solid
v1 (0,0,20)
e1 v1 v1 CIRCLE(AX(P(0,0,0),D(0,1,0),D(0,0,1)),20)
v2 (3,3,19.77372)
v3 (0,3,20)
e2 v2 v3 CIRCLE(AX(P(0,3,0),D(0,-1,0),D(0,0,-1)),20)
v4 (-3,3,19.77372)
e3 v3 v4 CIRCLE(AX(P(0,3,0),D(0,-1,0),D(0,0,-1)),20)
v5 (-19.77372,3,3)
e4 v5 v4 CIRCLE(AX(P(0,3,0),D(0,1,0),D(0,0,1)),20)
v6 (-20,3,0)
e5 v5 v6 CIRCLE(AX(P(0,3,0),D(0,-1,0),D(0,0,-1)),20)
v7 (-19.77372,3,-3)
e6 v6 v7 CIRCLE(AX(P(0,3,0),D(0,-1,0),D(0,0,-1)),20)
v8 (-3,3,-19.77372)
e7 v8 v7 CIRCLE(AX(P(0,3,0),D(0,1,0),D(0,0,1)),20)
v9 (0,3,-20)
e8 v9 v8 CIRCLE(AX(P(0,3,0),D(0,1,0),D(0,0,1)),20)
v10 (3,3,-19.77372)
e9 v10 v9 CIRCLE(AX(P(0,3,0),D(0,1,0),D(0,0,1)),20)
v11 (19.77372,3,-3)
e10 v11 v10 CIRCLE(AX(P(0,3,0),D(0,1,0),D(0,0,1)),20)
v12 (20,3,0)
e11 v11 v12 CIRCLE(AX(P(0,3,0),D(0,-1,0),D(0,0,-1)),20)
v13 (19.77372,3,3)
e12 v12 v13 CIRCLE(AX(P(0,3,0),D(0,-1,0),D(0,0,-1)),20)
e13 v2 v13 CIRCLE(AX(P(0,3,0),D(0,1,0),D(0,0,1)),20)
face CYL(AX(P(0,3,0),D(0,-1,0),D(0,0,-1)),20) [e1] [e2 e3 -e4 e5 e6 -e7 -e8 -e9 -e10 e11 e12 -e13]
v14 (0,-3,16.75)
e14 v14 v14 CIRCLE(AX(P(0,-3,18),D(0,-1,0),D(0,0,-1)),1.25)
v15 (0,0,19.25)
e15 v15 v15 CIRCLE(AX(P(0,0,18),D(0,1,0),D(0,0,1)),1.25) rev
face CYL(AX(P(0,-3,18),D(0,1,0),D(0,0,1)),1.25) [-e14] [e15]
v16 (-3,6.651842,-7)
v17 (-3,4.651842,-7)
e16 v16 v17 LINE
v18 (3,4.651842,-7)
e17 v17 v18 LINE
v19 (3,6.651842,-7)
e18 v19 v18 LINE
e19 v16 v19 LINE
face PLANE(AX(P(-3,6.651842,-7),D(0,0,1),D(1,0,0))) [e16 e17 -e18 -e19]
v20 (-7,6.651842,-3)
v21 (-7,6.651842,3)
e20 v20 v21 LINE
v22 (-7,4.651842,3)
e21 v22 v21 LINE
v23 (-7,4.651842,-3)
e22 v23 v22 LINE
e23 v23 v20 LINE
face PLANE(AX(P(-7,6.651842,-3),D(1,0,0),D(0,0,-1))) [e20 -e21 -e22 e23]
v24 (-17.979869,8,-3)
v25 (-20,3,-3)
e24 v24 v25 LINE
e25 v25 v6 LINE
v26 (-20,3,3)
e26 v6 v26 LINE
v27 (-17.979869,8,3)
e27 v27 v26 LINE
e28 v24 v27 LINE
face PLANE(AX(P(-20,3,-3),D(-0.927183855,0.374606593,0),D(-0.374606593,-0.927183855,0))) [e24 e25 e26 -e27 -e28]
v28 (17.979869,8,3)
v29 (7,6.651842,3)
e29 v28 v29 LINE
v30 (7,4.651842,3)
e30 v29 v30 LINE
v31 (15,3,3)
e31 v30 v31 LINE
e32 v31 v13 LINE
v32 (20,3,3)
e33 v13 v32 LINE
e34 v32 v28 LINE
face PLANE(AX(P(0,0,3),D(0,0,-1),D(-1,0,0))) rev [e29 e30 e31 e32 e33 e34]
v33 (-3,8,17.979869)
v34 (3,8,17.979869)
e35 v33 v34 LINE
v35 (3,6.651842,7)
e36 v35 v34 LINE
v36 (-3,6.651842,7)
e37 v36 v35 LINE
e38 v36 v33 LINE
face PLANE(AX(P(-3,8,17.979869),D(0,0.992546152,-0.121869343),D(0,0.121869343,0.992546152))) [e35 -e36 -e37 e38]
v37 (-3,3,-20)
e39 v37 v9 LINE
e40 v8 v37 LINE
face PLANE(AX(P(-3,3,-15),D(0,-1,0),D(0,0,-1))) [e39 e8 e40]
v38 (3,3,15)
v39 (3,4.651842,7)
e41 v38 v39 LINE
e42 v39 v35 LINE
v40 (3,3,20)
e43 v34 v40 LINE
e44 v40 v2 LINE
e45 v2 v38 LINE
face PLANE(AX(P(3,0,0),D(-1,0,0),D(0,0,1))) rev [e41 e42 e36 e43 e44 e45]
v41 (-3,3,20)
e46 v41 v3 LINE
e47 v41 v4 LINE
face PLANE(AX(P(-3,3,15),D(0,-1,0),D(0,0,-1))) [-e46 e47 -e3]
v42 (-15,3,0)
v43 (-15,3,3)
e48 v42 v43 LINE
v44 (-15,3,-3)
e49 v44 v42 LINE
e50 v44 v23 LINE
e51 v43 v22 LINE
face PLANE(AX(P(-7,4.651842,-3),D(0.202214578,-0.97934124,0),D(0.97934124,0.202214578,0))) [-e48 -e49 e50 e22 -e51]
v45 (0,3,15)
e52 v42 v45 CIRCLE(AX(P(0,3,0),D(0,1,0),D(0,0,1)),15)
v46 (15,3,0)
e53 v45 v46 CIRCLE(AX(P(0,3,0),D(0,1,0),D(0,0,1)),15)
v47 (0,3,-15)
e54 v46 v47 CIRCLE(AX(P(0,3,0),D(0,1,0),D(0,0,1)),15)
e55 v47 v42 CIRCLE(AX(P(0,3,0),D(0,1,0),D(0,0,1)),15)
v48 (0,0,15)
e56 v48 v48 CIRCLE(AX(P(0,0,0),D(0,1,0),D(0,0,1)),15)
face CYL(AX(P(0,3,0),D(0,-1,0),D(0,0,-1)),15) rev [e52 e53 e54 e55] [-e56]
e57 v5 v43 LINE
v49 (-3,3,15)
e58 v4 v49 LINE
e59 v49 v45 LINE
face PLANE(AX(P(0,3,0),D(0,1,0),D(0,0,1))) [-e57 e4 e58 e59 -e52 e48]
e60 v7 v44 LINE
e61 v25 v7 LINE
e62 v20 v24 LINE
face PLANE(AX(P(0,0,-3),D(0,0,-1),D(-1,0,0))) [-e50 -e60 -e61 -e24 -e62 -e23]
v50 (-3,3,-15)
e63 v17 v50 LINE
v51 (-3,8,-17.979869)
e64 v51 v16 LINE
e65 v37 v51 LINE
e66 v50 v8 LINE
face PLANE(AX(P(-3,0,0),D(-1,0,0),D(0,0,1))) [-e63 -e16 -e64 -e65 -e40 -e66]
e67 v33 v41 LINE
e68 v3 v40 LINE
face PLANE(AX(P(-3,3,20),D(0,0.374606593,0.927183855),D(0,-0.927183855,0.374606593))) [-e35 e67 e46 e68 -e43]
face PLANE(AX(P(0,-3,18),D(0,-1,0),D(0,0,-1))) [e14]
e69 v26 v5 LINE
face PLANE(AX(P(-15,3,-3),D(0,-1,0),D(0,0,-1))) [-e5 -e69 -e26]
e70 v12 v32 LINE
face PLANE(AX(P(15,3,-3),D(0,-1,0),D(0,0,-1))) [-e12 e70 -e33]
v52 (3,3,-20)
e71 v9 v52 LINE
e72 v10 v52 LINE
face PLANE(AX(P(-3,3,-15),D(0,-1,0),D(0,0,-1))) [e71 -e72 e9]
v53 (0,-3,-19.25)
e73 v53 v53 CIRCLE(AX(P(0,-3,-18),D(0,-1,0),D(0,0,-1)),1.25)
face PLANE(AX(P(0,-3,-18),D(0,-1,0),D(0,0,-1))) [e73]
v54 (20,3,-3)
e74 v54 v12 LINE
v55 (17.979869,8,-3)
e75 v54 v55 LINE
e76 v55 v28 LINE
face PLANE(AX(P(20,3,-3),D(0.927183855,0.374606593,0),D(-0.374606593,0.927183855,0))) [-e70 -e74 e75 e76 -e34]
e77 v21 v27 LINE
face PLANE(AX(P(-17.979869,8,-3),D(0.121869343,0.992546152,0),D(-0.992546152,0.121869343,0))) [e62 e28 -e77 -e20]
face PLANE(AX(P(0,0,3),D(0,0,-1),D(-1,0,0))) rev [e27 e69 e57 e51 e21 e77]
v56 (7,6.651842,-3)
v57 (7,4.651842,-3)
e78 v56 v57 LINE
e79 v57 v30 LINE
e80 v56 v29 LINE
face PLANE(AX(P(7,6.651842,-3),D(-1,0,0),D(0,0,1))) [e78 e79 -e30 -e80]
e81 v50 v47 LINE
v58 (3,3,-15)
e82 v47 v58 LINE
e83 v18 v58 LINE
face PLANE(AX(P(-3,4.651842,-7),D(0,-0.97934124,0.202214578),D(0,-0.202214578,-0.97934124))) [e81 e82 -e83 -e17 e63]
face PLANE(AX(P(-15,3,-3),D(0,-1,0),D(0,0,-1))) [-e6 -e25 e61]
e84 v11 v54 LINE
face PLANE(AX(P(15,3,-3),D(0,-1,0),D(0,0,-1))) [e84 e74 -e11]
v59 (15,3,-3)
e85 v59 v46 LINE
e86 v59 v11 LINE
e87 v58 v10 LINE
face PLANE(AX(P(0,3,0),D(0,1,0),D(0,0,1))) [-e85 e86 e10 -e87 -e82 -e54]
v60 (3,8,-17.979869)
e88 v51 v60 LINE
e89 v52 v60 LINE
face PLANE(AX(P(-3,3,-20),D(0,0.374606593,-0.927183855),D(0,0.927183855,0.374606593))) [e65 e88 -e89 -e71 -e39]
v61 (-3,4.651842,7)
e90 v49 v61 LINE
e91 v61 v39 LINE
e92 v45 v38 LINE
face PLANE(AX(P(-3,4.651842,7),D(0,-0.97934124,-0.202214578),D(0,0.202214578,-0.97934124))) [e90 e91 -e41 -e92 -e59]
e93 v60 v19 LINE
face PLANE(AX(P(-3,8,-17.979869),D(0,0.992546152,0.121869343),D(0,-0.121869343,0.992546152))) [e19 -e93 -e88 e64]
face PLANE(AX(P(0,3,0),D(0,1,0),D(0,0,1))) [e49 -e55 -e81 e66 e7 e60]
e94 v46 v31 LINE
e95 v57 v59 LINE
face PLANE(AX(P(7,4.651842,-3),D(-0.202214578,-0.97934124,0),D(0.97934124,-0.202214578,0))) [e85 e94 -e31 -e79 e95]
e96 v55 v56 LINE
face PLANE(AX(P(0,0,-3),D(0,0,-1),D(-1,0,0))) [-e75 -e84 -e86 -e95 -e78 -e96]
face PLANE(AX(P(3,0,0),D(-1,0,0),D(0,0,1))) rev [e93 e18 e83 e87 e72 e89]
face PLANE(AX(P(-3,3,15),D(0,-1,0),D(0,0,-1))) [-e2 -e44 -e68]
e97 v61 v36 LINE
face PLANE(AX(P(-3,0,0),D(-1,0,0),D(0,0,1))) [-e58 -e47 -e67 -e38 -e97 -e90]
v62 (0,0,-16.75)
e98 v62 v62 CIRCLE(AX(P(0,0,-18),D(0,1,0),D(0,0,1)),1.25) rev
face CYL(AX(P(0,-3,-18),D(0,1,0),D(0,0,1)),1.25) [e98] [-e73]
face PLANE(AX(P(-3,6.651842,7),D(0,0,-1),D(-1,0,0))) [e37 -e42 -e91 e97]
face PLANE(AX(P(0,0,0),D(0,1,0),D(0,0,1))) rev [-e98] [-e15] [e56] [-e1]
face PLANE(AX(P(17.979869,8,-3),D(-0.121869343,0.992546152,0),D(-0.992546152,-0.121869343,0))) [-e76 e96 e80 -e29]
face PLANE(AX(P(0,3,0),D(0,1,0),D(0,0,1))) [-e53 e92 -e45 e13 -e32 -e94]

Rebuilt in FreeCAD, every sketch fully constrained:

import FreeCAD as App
import Part
import Sketcher

V = App.Vector
Q = App.Units.Quantity

doc = App.newDocument("Part")
body = doc.addObject("PartDesign::Body", "Body")

# Sketch on XZ plane
sketch1 = doc.addObject("Sketcher::SketchObject", "Sketch")
body.addObject(sketch1)
sketch1.AttachmentSupport = (doc.XZ_Plane, [""])
sketch1.MapMode = "FlatFace"
sketch1.addGeometry([
    Part.Circle(V(0, 0, 0), V(0, 0, 1), 20),
    Part.Circle(V(0, 0, 0), V(0, 0, 1), 15),
], False)
sketch1.addConstraint([
    Sketcher.Constraint("Coincident", 0, 3, -1, 1),
    Sketcher.Constraint("Coincident", 1, 3, -1, 1),
    Sketcher.Constraint("Diameter", 0, 40.0),
    Sketcher.Constraint("Diameter", 1, 30.0),
])
pad1 = doc.addObject("PartDesign::Pad", "Pad")
body.addObject(pad1)
pad1.Profile = sketch1
pad1.Length = 3
pad1.Reversed = True

# Sketch on YZ plane
sketch2 = doc.addObject("Sketcher::SketchObject", "Sketch001")
body.addObject(sketch2)
sketch2.AttachmentSupport = (doc.YZ_Plane, [""])
sketch2.MapMode = "FlatFace"
sketch2.addGeometry([
    Part.LineSegment(V(3, -20, 0), V(8, -18, 0)),  # 0
    Part.LineSegment(V(8, -18, 0), V(6.7, -7, 0)),  # 1
    Part.LineSegment(V(6.7, -7, 0), V(4.7, -7, 0)),  # 2
    Part.LineSegment(V(4.7, -7, 0), V(3, -15, 0)),  # 3
    Part.LineSegment(V(3, -15, 0), V(3, -20, 0)),  # 4
    Part.LineSegment(V(3, 15, 0), V(4.7, 7, 0)),  # 5
    Part.LineSegment(V(4.7, 7, 0), V(6.7, 7, 0)),  # 6
    Part.LineSegment(V(6.7, 7, 0), V(8, 18, 0)),  # 7
    Part.LineSegment(V(8, 18, 0), V(3, 20, 0)),  # 8
    Part.LineSegment(V(3, 20, 0), V(3, 15, 0)),  # 9
], False)
sketch2.addConstraint([
    Sketcher.Constraint("Coincident", 0, 2, 1, 1),
    Sketcher.Constraint("Coincident", 1, 2, 2, 1),
    Sketcher.Constraint("Coincident", 2, 2, 3, 1),
    Sketcher.Constraint("Coincident", 3, 2, 4, 1),
    Sketcher.Constraint("Coincident", 4, 2, 0, 1),
    Sketcher.Constraint("Coincident", 5, 2, 6, 1),
    Sketcher.Constraint("Coincident", 6, 2, 7, 1),
    Sketcher.Constraint("Coincident", 7, 2, 8, 1),
    Sketcher.Constraint("Coincident", 8, 2, 9, 1),
    Sketcher.Constraint("Coincident", 9, 2, 5, 1),
    Sketcher.Constraint("Horizontal", 2),
    Sketcher.Constraint("Vertical", 4),
    Sketcher.Constraint("Horizontal", 6),
    Sketcher.Constraint("Vertical", 9),
    Sketcher.Constraint("Symmetric", 2, 2, 5, 2, -1),
    Sketcher.Constraint("Symmetric", 0, 2, 7, 2, -1),
    Sketcher.Constraint("Symmetric", 4, 2, 8, 2, -1),
    Sketcher.Constraint("Vertical", 1, 2, 6, 2),
    Sketcher.Constraint("Equal", 4, 9),
    Sketcher.Constraint("DistanceX", 2, 2, 2, 1, 2.0),
    Sketcher.Constraint("DistanceY", 4, 2, 4, 1, 5.0),
    Sketcher.Constraint("Angle", 0, Q("22 deg")),
    Sketcher.Constraint("Angle", 1, Q("97 deg")),
    Sketcher.Constraint("DistanceX", -1, 1, 0, 2, 8.0),
    Sketcher.Constraint("DistanceY", 1, 2, -1, 1, 7.0),
    Sketcher.Constraint("DistanceX", -1, 1, 3, 2, 3.0),
    Sketcher.Constraint("DistanceY", 3, 2, -1, 1, 15.0),
])
pad2 = doc.addObject("PartDesign::Pad", "Pad001")
body.addObject(pad2)
pad2.Profile = sketch2
pad2.Type = "TwoLengths"
pad2.Length = 3
pad2.Length2 = 3

# Sketch on XY plane
sketch3 = doc.addObject("Sketcher::SketchObject", "Sketch002")
body.addObject(sketch3)
sketch3.AttachmentSupport = (doc.XY_Plane, [""])
sketch3.MapMode = "FlatFace"
sketch3.addGeometry([
    Part.LineSegment(V(20, 3, 0), V(18, 8, 0)),  # 0
    Part.LineSegment(V(18, 8, 0), V(7, 6.7, 0)),  # 1
    Part.LineSegment(V(7, 6.7, 0), V(7, 4.7, 0)),  # 2
    Part.LineSegment(V(7, 4.7, 0), V(15, 3, 0)),  # 3
    Part.LineSegment(V(15, 3, 0), V(20, 3, 0)),  # 4
    Part.LineSegment(V(-15, 3, 0), V(-7, 4.7, 0)),  # 5
    Part.LineSegment(V(-7, 4.7, 0), V(-7, 6.7, 0)),  # 6
    Part.LineSegment(V(-7, 6.7, 0), V(-18, 8, 0)),  # 7
    Part.LineSegment(V(-18, 8, 0), V(-20, 3, 0)),  # 8
    Part.LineSegment(V(-20, 3, 0), V(-15, 3, 0)),  # 9
], False)
sketch3.addConstraint([
    Sketcher.Constraint("Coincident", 0, 2, 1, 1),
    Sketcher.Constraint("Coincident", 1, 2, 2, 1),
    Sketcher.Constraint("Coincident", 2, 2, 3, 1),
    Sketcher.Constraint("Coincident", 3, 2, 4, 1),
    Sketcher.Constraint("Coincident", 4, 2, 0, 1),
    Sketcher.Constraint("Coincident", 5, 2, 6, 1),
    Sketcher.Constraint("Coincident", 6, 2, 7, 1),
    Sketcher.Constraint("Coincident", 7, 2, 8, 1),
    Sketcher.Constraint("Coincident", 8, 2, 9, 1),
    Sketcher.Constraint("Coincident", 9, 2, 5, 1),
    Sketcher.Constraint("Vertical", 2),
    Sketcher.Constraint("Horizontal", 4),
    Sketcher.Constraint("Vertical", 6),
    Sketcher.Constraint("Horizontal", 9),
    Sketcher.Constraint("Symmetric", 2, 2, 5, 2, -2),
    Sketcher.Constraint("Symmetric", 0, 2, 7, 2, -2),
    Sketcher.Constraint("Symmetric", 4, 2, 8, 2, -2),
    Sketcher.Constraint("Horizontal", 1, 2, 6, 2),
    Sketcher.Constraint("Equal", 4, 9),
    Sketcher.Constraint("DistanceX", 4, 1, 4, 2, 5.0),
    Sketcher.Constraint("DistanceY", 2, 2, 2, 1, 2.0),
    Sketcher.Constraint("Angle", 0, Q("112 deg")),
    Sketcher.Constraint("Angle", 1, Q("-173 deg")),
    Sketcher.Constraint("DistanceY", -1, 1, 0, 2, 8.0),
    Sketcher.Constraint("DistanceX", -1, 1, 1, 2, 7.0),
    Sketcher.Constraint("DistanceX", -1, 1, 3, 2, 15.0),
    Sketcher.Constraint("DistanceY", -1, 1, 3, 2, 3.0),
])
pad3 = doc.addObject("PartDesign::Pad", "Pad002")
body.addObject(pad3)
pad3.Profile = sketch3
pad3.Type = "TwoLengths"
pad3.Length = 3
pad3.Length2 = 3

# Sketch on XZ plane
sketch4 = doc.addObject("Sketcher::SketchObject", "Sketch003")
body.addObject(sketch4)
sketch4.AttachmentSupport = (doc.XZ_Plane, [""])
sketch4.MapMode = "FlatFace"
sketch4.addGeometry([
    Part.Circle(V(0, 18, 0), V(0, 0, 1), 1.2),
    Part.Circle(V(0, -18, 0), V(0, 0, 1), 1.2),
], False)
sketch4.addConstraint([
    Sketcher.Constraint("Equal", 0, 1),
    Sketcher.Constraint("Symmetric", 0, 3, 1, 3, -1, 1),
    Sketcher.Constraint("PointOnObject", 0, 3, -2),
    Sketcher.Constraint("Diameter", 0, 2.5),
    Sketcher.Constraint("DistanceY", -1, 1, 0, 3, 18.0),
])
pad4 = doc.addObject("PartDesign::Pad", "Pad003")
body.addObject(pad4)
pad4.Profile = sketch4
pad4.Length = 3

doc.recompute()
